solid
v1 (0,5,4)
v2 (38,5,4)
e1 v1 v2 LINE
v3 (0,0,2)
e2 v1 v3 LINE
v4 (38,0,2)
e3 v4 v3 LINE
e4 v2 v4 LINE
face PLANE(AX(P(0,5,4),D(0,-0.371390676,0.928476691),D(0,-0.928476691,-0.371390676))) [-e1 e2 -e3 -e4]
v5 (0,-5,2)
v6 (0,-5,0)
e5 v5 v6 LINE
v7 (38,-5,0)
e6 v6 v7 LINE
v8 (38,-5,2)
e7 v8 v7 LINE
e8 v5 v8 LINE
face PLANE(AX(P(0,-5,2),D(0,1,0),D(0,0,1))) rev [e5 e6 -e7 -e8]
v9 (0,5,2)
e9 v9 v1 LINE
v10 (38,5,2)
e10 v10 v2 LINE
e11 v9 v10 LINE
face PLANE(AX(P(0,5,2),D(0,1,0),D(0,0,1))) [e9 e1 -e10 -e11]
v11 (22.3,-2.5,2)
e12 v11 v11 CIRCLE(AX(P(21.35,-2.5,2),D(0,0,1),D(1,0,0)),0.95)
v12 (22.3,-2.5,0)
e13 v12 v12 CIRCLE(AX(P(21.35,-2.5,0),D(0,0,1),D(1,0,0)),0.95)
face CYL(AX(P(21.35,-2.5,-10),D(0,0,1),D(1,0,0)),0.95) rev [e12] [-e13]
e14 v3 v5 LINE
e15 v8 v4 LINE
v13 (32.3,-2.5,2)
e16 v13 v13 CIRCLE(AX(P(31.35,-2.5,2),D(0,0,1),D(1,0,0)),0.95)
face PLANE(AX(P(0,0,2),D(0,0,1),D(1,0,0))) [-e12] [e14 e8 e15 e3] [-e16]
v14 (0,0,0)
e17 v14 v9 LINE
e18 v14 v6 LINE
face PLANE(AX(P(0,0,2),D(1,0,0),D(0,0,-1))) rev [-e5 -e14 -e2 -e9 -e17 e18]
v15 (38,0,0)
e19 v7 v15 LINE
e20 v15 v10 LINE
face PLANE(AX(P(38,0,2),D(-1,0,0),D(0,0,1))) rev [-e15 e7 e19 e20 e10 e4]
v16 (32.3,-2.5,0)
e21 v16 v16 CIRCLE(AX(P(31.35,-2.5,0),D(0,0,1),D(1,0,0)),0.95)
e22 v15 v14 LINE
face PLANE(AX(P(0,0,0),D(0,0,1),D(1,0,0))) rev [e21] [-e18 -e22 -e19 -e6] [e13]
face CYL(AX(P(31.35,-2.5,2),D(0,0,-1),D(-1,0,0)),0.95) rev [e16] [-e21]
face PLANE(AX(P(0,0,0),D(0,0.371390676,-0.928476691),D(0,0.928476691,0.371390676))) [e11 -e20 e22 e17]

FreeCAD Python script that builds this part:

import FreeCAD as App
import Part
import Sketcher
Q = App.Units.Quantity


def add_polygon(sketch, points):
    """Adds a closed chain of lines whose ends are joined by coincident constraints."""
    first, n = sketch.GeometryCount, len(points)
    for a, b in zip(points, points[1:] + points[:1]):
        sketch.addGeometry(Part.LineSegment(App.Vector(*a, 0), App.Vector(*b, 0)), False)
    for i in range(n):
        sketch.addConstraint(Sketcher.Constraint("Coincident", first + i, 2, first + (i + 1) % n, 1))

doc = App.newDocument("Part")
body = doc.addObject("PartDesign::Body", "Body")

sketch1 = body.newObject("Sketcher::SketchObject", "Sketch")
sketch1.AttachmentSupport = (doc.getObject("XY_Plane"), [""])
sketch1.MapMode = "FlatFace"
add_polygon(sketch1, [(0, 0), (0, -5), (38, -5), (38, 0)])
sketch1.addGeometry(Part.Circle(App.Vector(31.4, -2.5, 0), App.Vector(0, 0, 1), 0.9), False)
sketch1.addConstraint(Sketcher.Constraint("Vertical", 0))
sketch1.addConstraint(Sketcher.Constraint("Horizontal", 1))
sketch1.addConstraint(Sketcher.Constraint("Vertical", 2))
sketch1.addConstraint(Sketcher.Constraint("Horizontal", 3))
sketch1.addConstraint(Sketcher.Constraint("Coincident", 3, 2, -1, 1))
sketch1.addConstraint(Sketcher.Constraint("Diameter", 4, Q("1.9 mm")))
sketch1.addConstraint(Sketcher.Constraint("DistanceX", 1, 1, 1, 2, Q("38 mm")))
sketch1.addConstraint(Sketcher.Constraint("DistanceY", 0, 2, 0, 1, Q("5 mm")))
sketch1.addConstraint(Sketcher.Constraint("DistanceY", 4, 3, -1, 1, Q("2.5 mm")))
sketch1.addConstraint(Sketcher.Constraint("DistanceX", -1, 1, 4, 3, Q("31.35 mm")))
pad1 = body.newObject("PartDesign::Pad", "Pad")
pad1.Profile = sketch1
pad1.Length = 2

sketch2 = body.newObject("Sketcher::SketchObject", "Sketch001")
sketch2.AttachmentSupport = (doc.getObject("YZ_Plane"), [""])
sketch2.MapMode = "FlatFace"
sketch2.AttachmentOffset = App.Placement(App.Vector(0, 0, 38), App.Rotation())
add_polygon(sketch2, [(0, 0), (5, 2), (5, 4), (0, 2)])
sketch2.addConstraint(Sketcher.Constraint("Vertical", 1))
sketch2.addConstraint(Sketcher.Constraint("Vertical", 3))
sketch2.addConstraint(Sketcher.Constraint("Coincident", 3, 2, -1, 1))
sketch2.addConstraint(Sketcher.Constraint("Parallel", 0, 2))
sketch2.addConstraint(Sketcher.Constraint("Horizontal", 0, 2, 2, 2))
sketch2.addConstraint(Sketcher.Constraint("DistanceY", 1, 1, 1, 2, Q("2 mm")))
sketch2.addConstraint(Sketcher.Constraint("DistanceX", -1, 1, 0, 2, Q("5 mm")))
pad2 = body.newObject("PartDesign::Pad", "Pad001")
pad2.Profile = sketch2
pad2.Length = 38
pad2.Reversed = True

sketch3 = body.newObject("Sketcher::SketchObject", "Sketch002")
sketch3.AttachmentSupport = (doc.getObject("XY_Plane"), [""])
sketch3.MapMode = "FlatFace"
sketch3.AttachmentOffset = App.Placement(App.Vector(0, 0, 2), App.Rotation())
sketch3.addGeometry(Part.Circle(App.Vector(21.4, -2.5, 0), App.Vector(0, 0, 1), 0.9), False)
sketch3.addConstraint(Sketcher.Constraint("Diameter", 0, Q("1.9 mm")))
sketch3.addConstraint(Sketcher.Constraint("DistanceY", 0, 3, -1, 1, Q("2.5 mm")))
sketch3.addConstraint(Sketcher.Constraint("DistanceX", -1, 1, 0, 3, Q("21.35 mm")))
pocket1 = body.newObject("PartDesign::Pocket", "Pocket")
pocket1.Profile = sketch3
pocket1.Length = 12

doc.recompute()
